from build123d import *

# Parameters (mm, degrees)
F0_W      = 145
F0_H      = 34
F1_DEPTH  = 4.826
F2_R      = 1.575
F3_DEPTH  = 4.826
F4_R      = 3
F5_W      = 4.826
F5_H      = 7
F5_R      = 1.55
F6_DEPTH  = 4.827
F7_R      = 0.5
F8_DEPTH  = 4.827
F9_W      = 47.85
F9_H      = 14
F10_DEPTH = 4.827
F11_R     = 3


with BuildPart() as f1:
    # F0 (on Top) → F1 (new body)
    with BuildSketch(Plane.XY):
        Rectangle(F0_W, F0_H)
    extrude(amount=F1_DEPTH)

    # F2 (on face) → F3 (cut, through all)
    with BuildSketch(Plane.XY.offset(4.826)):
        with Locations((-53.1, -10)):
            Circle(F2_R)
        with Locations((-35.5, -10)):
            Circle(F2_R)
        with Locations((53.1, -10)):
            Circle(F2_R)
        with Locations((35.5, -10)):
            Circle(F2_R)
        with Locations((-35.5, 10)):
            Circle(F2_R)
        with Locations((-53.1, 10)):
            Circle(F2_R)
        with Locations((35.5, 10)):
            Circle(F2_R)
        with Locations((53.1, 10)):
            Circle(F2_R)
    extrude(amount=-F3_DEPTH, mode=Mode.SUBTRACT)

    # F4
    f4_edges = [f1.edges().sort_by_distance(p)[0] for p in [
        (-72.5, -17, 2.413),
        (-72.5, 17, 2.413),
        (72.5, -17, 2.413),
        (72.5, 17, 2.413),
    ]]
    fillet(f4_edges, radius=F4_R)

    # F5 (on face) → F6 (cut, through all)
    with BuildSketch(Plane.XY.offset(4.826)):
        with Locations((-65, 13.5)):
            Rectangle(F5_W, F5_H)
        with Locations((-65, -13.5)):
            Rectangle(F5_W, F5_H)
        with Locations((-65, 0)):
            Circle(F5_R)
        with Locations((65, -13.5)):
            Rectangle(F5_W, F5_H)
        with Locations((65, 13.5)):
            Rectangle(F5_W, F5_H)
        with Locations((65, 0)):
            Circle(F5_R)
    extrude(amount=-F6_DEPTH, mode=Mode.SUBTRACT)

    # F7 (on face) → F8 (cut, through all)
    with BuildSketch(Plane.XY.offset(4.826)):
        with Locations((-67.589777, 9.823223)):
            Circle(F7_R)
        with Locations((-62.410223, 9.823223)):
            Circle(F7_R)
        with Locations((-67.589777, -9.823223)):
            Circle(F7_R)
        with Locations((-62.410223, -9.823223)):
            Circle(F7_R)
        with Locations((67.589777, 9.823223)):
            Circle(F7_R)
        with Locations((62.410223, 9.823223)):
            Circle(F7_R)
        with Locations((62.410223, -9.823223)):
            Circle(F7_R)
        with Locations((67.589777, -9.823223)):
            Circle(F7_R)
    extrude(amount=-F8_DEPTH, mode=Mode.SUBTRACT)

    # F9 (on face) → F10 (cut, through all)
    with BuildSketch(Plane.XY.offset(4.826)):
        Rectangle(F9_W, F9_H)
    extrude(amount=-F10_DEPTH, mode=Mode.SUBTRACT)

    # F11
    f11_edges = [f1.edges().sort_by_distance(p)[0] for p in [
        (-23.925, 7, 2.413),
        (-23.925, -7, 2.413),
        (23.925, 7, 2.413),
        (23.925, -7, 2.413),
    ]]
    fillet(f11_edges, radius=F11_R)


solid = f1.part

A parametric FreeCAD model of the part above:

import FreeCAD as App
import Part
import Sketcher

V = App.Vector
Q = App.Units.Quantity


def edges_at(feature, points):
    """Names of the edges that pass closest to the given points."""
    edges = feature.Shape.Edges
    near = lambda p: min(range(len(edges)), key=lambda i: edges[i].distToShape(Part.Vertex(*p))[0])
    return sorted({f"Edge{near(p) + 1}" for p in points})

doc = App.newDocument("Part")
body = doc.addObject("PartDesign::Body", "Body")

# Sketch on XY plane
sketch1 = body.newObject("Sketcher::SketchObject", "Sketch")
sketch1.AttachmentSupport = (doc.getObject("XY_Plane"), [""])
sketch1.MapMode = "FlatFace"
sketch1.addGeometry(Part.LineSegment(V(-72, 17, 0), V(-72, -17, 0)), False)
sketch1.addGeometry(Part.LineSegment(V(-72, -17, 0), V(72, -17, 0)), False)
sketch1.addGeometry(Part.LineSegment(V(72, -17, 0), V(72, 17, 0)), False)
sketch1.addGeometry(Part.LineSegment(V(72, 17, 0), V(-72, 17, 0)), False)
sketch1.addConstraint(Sketcher.Constraint("Coincident", 0, 2, 1, 1))
sketch1.addConstraint(Sketcher.Constraint("Coincident", 1, 2, 2, 1))
sketch1.addConstraint(Sketcher.Constraint("Coincident", 2, 2, 3, 1))
sketch1.addConstraint(Sketcher.Constraint("Coincident", 3, 2, 0, 1))
sketch1.addConstraint(Sketcher.Constraint("Vertical", 0))
sketch1.addConstraint(Sketcher.Constraint("Horizontal", 1))
sketch1.addConstraint(Sketcher.Constraint("Vertical", 2))
sketch1.addConstraint(Sketcher.Constraint("Horizontal", 3))
sketch1.addConstraint(Sketcher.Constraint("Symmetric", 0, 2, 2, 2, -1, 1))
sketch1.addConstraint(Sketcher.Constraint("DistanceX", 1, 1, 1, 2, Q("145 mm")))
sketch1.addConstraint(Sketcher.Constraint("DistanceY", 0, 2, 0, 1, Q("34 mm")))
pad1 = body.newObject("PartDesign::Pad", "Pad")
pad1.Profile = sketch1
pad1.Length = 4.826

# Sketch on XY plane
sketch2 = body.newObject("Sketcher::SketchObject", "Sketch001")
sketch2.AttachmentSupport = (doc.getObject("XY_Plane"), [""])
sketch2.MapMode = "FlatFace"
sketch2.AttachmentOffset = App.Placement(V(0, 0, 4.826), App.Rotation())
sketch2.addGeometry(Part.Circle(V(-53.1, -10, 0), V(0, 0, 1), 1.6), False)
sketch2.addGeometry(Part.Circle(V(-35.5, -10, 0), V(0, 0, 1), 1.6), False)
sketch2.addGeometry(Part.Circle(V(53.1, -10, 0), V(0, 0, 1), 1.6), False)
sketch2.addGeometry(Part.Circle(V(35.5, -10, 0), V(0, 0, 1), 1.6), False)
sketch2.addGeometry(Part.Circle(V(-35.5, 10, 0), V(0, 0, 1), 1.6), False)
sketch2.addGeometry(Part.Circle(V(-53.1, 10, 0), V(0, 0, 1), 1.6), False)
sketch2.addGeometry(Part.Circle(V(35.5, 10, 0), V(0, 0, 1), 1.6), False)
sketch2.addGeometry(Part.Circle(V(53.1, 10, 0), V(0, 0, 1), 1.6), False)
sketch2.addConstraint(Sketcher.Constraint("Equal", 0, 1))
sketch2.addConstraint(Sketcher.Constraint("Equal", 1, 2))
sketch2.addConstraint(Sketcher.Constraint("Equal", 2, 3))
sketch2.addConstraint(Sketcher.Constraint("Equal", 3, 4))
sketch2.addConstraint(Sketcher.Constraint("Equal", 4, 5))
sketch2.addConstraint(Sketcher.Constraint("Equal", 5, 6))
sketch2.addConstraint(Sketcher.Constraint("Equal", 6, 7))
sketch2.addConstraint(Sketcher.Constraint("Symmetric", 3, 3, 4, 3, -1, 1))
sketch2.addConstraint(Sketcher.Constraint("Symmetric", 2, 3, 5, 3, -1, 1))
sketch2.addConstraint(Sketcher.Constraint("Symmetric", 1, 3, 6, 3, -1, 1))
sketch2.addConstraint(Sketcher.Constraint("Symmetric", 0, 3, 7, 3, -1, 1))
sketch2.addConstraint(Sketcher.Constraint("Symmetric", 0, 3, 2, 3, -2))
sketch2.addConstraint(Sketcher.Constraint("Symmetric", 1, 3, 3, 3, -2))
sketch2.addConstraint(Sketcher.Constraint("Horizontal", 0, 3, 1, 3))
sketch2.addConstraint(Sketcher.Constraint("Diameter", 0, Q("3.15 mm")))
sketch2.addConstraint(Sketcher.Constraint("DistanceY", 0, 3, -1, 1, Q("10 mm")))
sketch2.addConstraint(Sketcher.Constraint("DistanceX", 1, 3, 3, 3, Q("71 mm")))
sketch2.addConstraint(Sketcher.Constraint("DistanceX", 0, 3, -1, 1, Q("53.1 mm")))
pocket1 = body.newObject("PartDesign::Pocket", "Pocket")
pocket1.Profile = sketch2
pocket1.Type = "ThroughAll"
doc.recompute()

fillet = body.newObject("PartDesign::Fillet", "Fillet")
fillet.Base = (pocket1, edges_at(pocket1, [
    (-72.5, -17, 2.413),
    (-72.5, 17, 2.413),
    (72.5, -17, 2.413),
    (72.5, 17, 2.413),
]))
fillet.Radius = 3

# Sketch on XY plane
sketch3 = body.newObject("Sketcher::SketchObject", "Sketch002")
sketch3.AttachmentSupport = (doc.getObject("XY_Plane"), [""])
sketch3.MapMode = "FlatFace"
sketch3.AttachmentOffset = App.Placement(V(0, 0, 4.826), App.Rotation())
sketch3.addGeometry(Part.LineSegment(V(-67.4, 17, 0), V(-67.4, 10, 0)), False)
sketch3.addGeometry(Part.LineSegment(V(-67.4, 10, 0), V(-62.6, 10, 0)), False)
sketch3.addGeometry(Part.LineSegment(V(-62.6, 10, 0), V(-62.6, 17, 0)), False)
sketch3.addGeometry(Part.LineSegment(V(-62.6, 17, 0), V(-67.4, 17, 0)), False)
sketch3.addGeometry(Part.LineSegment(V(-67.4, -10, 0), V(-67.4, -17, 0)), False)
sketch3.addGeometry(Part.LineSegment(V(-67.4, -17, 0), V(-62.6, -17, 0)), False)
sketch3.addGeometry(Part.LineSegment(V(-62.6, -17, 0), V(-62.6, -10, 0)), False)
sketch3.addGeometry(Part.LineSegment(V(-62.6, -10, 0), V(-67.4, -10, 0)), False)
sketch3.addGeometry(Part.Circle(V(-65, 0, 0), V(0, 0, 1), 1.6), False)
sketch3.addGeometry(Part.LineSegment(V(62.6, -10, 0), V(62.6, -17, 0)), False)
sketch3.addGeometry(Part.LineSegment(V(62.6, -17, 0), V(67.4, -17, 0)), False)
sketch3.addGeometry(Part.LineSegment(V(67.4, -17, 0), V(67.4, -10, 0)), False)
sketch3.addGeometry(Part.LineSegment(V(67.4, -10, 0), V(62.6, -10, 0)), False)
sketch3.addGeometry(Part.LineSegment(V(62.6, 17, 0), V(62.6, 10, 0)), False)
sketch3.addGeometry(Part.LineSegment(V(62.6, 10, 0), V(67.4, 10, 0)), False)
sketch3.addGeometry(Part.LineSegment(V(67.4, 10, 0), V(67.4, 17, 0)), False)
sketch3.addGeometry(Part.LineSegment(V(67.4, 17, 0), V(62.6, 17, 0)), False)
sketch3.addGeometry(Part.Circle(V(65, 0, 0), V(0, 0, 1), 1.6), False)
sketch3.addConstraint(Sketcher.Constraint("Coincident", 0, 2, 1, 1))
sketch3.addConstraint(Sketcher.Constraint("Coincident", 1, 2, 2, 1))
sketch3.addConstraint(Sketcher.Constraint("Coincident", 2, 2, 3, 1))
sketch3.addConstraint(Sketcher.Constraint("Coincident", 3, 2, 0, 1))
sketch3.addConstraint(Sketcher.Constraint("Coincident", 4, 2, 5, 1))
sketch3.addConstraint(Sketcher.Constraint("Coincident", 5, 2, 6, 1))
sketch3.addConstraint(Sketcher.Constraint("Coincident", 6, 2, 7, 1))
sketch3.addConstraint(Sketcher.Constraint("Coincident", 7, 2, 4, 1))
sketch3.addConstraint(Sketcher.Constraint("Coincident", 9, 2, 10, 1))
sketch3.addConstraint(Sketcher.Constraint("Coincident", 10, 2, 11, 1))
sketch3.addConstraint(Sketcher.Constraint("Coincident", 11, 2, 12, 1))
sketch3.addConstraint(Sketcher.Constraint("Coincident", 12, 2, 9, 1))
sketch3.addConstraint(Sketcher.Constraint("Coincident", 13, 2, 14, 1))
sketch3.addConstraint(Sketcher.Constraint("Coincident", 14, 2, 15, 1))
sketch3.addConstraint(Sketcher.Constraint("Coincident", 15, 2, 16, 1))
sketch3.addConstraint(Sketcher.Constraint("Coincident", 16, 2, 13, 1))
sketch3.addConstraint(Sketcher.Constraint("Vertical", 0))
sketch3.addConstraint(Sketcher.Constraint("Horizontal", 1))
sketch3.addConstraint(Sketcher.Constraint("Vertical", 2))
sketch3.addConstraint(Sketcher.Constraint("Horizontal", 3))
sketch3.addConstraint(Sketcher.Constraint("Vertical", 4))
sketch3.addConstraint(Sketcher.Constraint("Horizontal", 5))
sketch3.addConstraint(Sketcher.Constraint("Vertical", 6))
sketch3.addConstraint(Sketcher.Constraint("Horizontal", 7))
sketch3.addConstraint(Sketcher.Constraint("Vertical", 9))
sketch3.addConstraint(Sketcher.Constraint("Horizontal", 10))
sketch3.addConstraint(Sketcher.Constraint("Vertical", 11))
sketch3.addConstraint(Sketcher.Constraint("Horizontal", 12))
sketch3.addConstraint(Sketcher.Constraint("Vertical", 13))
sketch3.addConstraint(Sketcher.Constraint("Horizontal", 14))
sketch3.addConstraint(Sketcher.Constraint("Vertical", 15))
sketch3.addConstraint(Sketcher.Constraint("Horizontal", 16))
sketch3.addConstraint(Sketcher.Constraint("Equal", 8, 17))
sketch3.addConstraint(Sketcher.Constraint("Symmetric", 8, 3, 17, 3, -1, 1))
sketch3.addConstraint(Sketcher.Constraint("Symmetric", 2, 2, 9, 2, -1, 1))
sketch3.addConstraint(Sketcher.Constraint("Symmetric", 0, 2, 11, 2, -1, 1))
sketch3.addConstraint(Sketcher.Constraint("Symmetric", 6, 2, 13, 2, -1, 1))
sketch3.addConstraint(Sketcher.Constraint("Symmetric", 4, 2, 15, 2, -1, 1))
sketch3.addConstraint(Sketcher.Constraint("Symmetric", 5, 2, 9, 2, -2))
sketch3.addConstraint(Sketcher.Constraint("Symmetric", 7, 2, 11, 2, -2))
sketch3.addConstraint(Sketcher.Constraint("PointOnObject", 8, 3, -1))
sketch3.addConstraint(Sketcher.Constraint("Diameter", 8, Q("3.1 mm")))
sketch3.addConstraint(Sketcher.Constraint("DistanceY", 0, 2, 0, 1, Q("7 mm")))
sketch3.addConstraint(Sketcher.Constraint("DistanceX", 8, 3, -1, 1, Q("65 mm")))
sketch3.addConstraint(Sketcher.Constraint("DistanceY", -1, 1, 0, 2, Q("10 mm")))
sketch3.addConstraint(Sketcher.Constraint("DistanceX", 5, 2, 10, 2, Q("130 mm")))
sketch3.addConstraint(Sketcher.Constraint("DistanceX", 1, 1, 1, 2, Q("4.826 mm")))
pocket2 = body.newObject("PartDesign::Pocket", "Pocket001")
pocket2.Profile = sketch3
pocket2.Type = "ThroughAll"

# Sketch on XY plane
sketch4 = body.newObject("Sketcher::SketchObject", "Sketch003")
sketch4.AttachmentSupport = (doc.getObject("XY_Plane"), [""])
sketch4.MapMode = "FlatFace"
sketch4.AttachmentOffset = App.Placement(V(0, 0, 4.826), App.Rotation())
sketch4.addGeometry(Part.Circle(V(-67.6, 9.8, 0), V(0, 0, 1), 0.5), False)
sketch4.addGeometry(Part.Circle(V(-62.4, 9.8, 0), V(0, 0, 1), 0.5), False)
sketch4.addGeometry(Part.Circle(V(-67.6, -9.8, 0), V(0, 0, 1), 0.5), False)
sketch4.addGeometry(Part.Circle(V(-62.4, -9.8, 0), V(0, 0, 1), 0.5), False)
sketch4.addGeometry(Part.Circle(V(67.6, 9.8, 0), V(0, 0, 1), 0.5), False)
sketch4.addGeometry(Part.Circle(V(62.4, 9.8, 0), V(0, 0, 1), 0.5), False)
sketch4.addGeometry(Part.Circle(V(62.4, -9.8, 0), V(0, 0, 1), 0.5), False)
sketch4.addGeometry(Part.Circle(V(67.6, -9.8, 0), V(0, 0, 1), 0.5), False)
sketch4.addConstraint(Sketcher.Constraint("Equal", 0, 1))
sketch4.addConstraint(Sketcher.Constraint("Equal", 1, 2))
sketch4.addConstraint(Sketcher.Constraint("Equal", 2, 3))
sketch4.addConstraint(Sketcher.Constraint("Equal", 3, 4))
sketch4.addConstraint(Sketcher.Constraint("Equal", 4, 5))
sketch4.addConstraint(Sketcher.Constraint("Equal", 5, 6))
sketch4.addConstraint(Sketcher.Constraint("Equal", 6, 7))
sketch4.addConstraint(Sketcher.Constraint("Symmetric", 2, 3, 4, 3, -1, 1))
sketch4.addConstraint(Sketcher.Constraint("Symmetric", 3, 3, 5, 3, -1, 1))
sketch4.addConstraint(Sketcher.Constraint("Symmetric", 1, 3, 6, 3, -1, 1))
sketch4.addConstraint(Sketcher.Constraint("Symmetric", 0, 3, 7, 3, -1, 1))
sketch4.addConstraint(Sketcher.Constraint("Symmetric", 0, 3, 4, 3, -2))
sketch4.addConstraint(Sketcher.Constraint("Symmetric", 1, 3, 5, 3, -2))
sketch4.addConstraint(Sketcher.Constraint("Horizontal", 0, 3, 1, 3))
sketch4.addConstraint(Sketcher.Constraint("Diameter", 0, Q("1 mm")))
sketch4.addConstraint(Sketcher.Constraint("DistanceX", 1, 3, 4, 3, Q("130 mm")))
sketch4.addConstraint(Sketcher.Constraint("DistanceX", 0, 3, -1, 1, Q("67.589777 mm")))
sketch4.addConstraint(Sketcher.Constraint("DistanceY", -1, 1, 0, 3, Q("9.823223 mm")))
pocket3 = body.newObject("PartDesign::Pocket", "Pocket002")
pocket3.Profile = sketch4
pocket3.Type = "ThroughAll"

# Sketch on XY plane
sketch5 = body.newObject("Sketcher::SketchObject", "Sketch004")
sketch5.AttachmentSupport = (doc.getObject("XY_Plane"), [""])
sketch5.MapMode = "FlatFace"
sketch5.AttachmentOffset = App.Placement(V(0, 0, 4.826), App.Rotation())
sketch5.addGeometry(Part.LineSegment(V(-24, 7, 0), V(-24, -7, 0)), False)
sketch5.addGeometry(Part.LineSegment(V(-24, -7, 0), V(24, -7, 0)), False)
sketch5.addGeometry(Part.LineSegment(V(24, -7, 0), V(24, 7, 0)), False)
sketch5.addGeometry(Part.LineSegment(V(24, 7, 0), V(-24, 7, 0)), False)
sketch5.addConstraint(Sketcher.Constraint("Coincident", 0, 2, 1, 1))
sketch5.addConstraint(Sketcher.Constraint("Coincident", 1, 2, 2, 1))
sketch5.addConstraint(Sketcher.Constraint("Coincident", 2, 2, 3, 1))
sketch5.addConstraint(Sketcher.Constraint("Coincident", 3, 2, 0, 1))
sketch5.addConstraint(Sketcher.Constraint("Vertical", 0))
sketch5.addConstraint(Sketcher.Constraint("Horizontal", 1))
sketch5.addConstraint(Sketcher.Constraint("Vertical", 2))
sketch5.addConstraint(Sketcher.Constraint("Horizontal", 3))
sketch5.addConstraint(Sketcher.Constraint("Symmetric", 0, 2, 2, 2, -1, 1))
sketch5.addConstraint(Sketcher.Constraint("DistanceY", 0, 2, 0, 1, Q("14 mm")))
sketch5.addConstraint(Sketcher.Constraint("DistanceX", 1, 1, 1, 2, Q("47.85 mm")))
pocket4 = body.newObject("PartDesign::Pocket", "Pocket003")
pocket4.Profile = sketch5
pocket4.Type = "ThroughAll"
doc.recompute()

fillet2 = body.newObject("PartDesign::Fillet", "Fillet001")
fillet2.Base = (pocket4, edges_at(pocket4, [
    (-23.925, 7, 2.413),
    (-23.925, -7, 2.413),
    (23.925, 7, 2.413),
    (23.925, -7, 2.413),
]))
fillet2.Radius = 3

doc.recompute()
